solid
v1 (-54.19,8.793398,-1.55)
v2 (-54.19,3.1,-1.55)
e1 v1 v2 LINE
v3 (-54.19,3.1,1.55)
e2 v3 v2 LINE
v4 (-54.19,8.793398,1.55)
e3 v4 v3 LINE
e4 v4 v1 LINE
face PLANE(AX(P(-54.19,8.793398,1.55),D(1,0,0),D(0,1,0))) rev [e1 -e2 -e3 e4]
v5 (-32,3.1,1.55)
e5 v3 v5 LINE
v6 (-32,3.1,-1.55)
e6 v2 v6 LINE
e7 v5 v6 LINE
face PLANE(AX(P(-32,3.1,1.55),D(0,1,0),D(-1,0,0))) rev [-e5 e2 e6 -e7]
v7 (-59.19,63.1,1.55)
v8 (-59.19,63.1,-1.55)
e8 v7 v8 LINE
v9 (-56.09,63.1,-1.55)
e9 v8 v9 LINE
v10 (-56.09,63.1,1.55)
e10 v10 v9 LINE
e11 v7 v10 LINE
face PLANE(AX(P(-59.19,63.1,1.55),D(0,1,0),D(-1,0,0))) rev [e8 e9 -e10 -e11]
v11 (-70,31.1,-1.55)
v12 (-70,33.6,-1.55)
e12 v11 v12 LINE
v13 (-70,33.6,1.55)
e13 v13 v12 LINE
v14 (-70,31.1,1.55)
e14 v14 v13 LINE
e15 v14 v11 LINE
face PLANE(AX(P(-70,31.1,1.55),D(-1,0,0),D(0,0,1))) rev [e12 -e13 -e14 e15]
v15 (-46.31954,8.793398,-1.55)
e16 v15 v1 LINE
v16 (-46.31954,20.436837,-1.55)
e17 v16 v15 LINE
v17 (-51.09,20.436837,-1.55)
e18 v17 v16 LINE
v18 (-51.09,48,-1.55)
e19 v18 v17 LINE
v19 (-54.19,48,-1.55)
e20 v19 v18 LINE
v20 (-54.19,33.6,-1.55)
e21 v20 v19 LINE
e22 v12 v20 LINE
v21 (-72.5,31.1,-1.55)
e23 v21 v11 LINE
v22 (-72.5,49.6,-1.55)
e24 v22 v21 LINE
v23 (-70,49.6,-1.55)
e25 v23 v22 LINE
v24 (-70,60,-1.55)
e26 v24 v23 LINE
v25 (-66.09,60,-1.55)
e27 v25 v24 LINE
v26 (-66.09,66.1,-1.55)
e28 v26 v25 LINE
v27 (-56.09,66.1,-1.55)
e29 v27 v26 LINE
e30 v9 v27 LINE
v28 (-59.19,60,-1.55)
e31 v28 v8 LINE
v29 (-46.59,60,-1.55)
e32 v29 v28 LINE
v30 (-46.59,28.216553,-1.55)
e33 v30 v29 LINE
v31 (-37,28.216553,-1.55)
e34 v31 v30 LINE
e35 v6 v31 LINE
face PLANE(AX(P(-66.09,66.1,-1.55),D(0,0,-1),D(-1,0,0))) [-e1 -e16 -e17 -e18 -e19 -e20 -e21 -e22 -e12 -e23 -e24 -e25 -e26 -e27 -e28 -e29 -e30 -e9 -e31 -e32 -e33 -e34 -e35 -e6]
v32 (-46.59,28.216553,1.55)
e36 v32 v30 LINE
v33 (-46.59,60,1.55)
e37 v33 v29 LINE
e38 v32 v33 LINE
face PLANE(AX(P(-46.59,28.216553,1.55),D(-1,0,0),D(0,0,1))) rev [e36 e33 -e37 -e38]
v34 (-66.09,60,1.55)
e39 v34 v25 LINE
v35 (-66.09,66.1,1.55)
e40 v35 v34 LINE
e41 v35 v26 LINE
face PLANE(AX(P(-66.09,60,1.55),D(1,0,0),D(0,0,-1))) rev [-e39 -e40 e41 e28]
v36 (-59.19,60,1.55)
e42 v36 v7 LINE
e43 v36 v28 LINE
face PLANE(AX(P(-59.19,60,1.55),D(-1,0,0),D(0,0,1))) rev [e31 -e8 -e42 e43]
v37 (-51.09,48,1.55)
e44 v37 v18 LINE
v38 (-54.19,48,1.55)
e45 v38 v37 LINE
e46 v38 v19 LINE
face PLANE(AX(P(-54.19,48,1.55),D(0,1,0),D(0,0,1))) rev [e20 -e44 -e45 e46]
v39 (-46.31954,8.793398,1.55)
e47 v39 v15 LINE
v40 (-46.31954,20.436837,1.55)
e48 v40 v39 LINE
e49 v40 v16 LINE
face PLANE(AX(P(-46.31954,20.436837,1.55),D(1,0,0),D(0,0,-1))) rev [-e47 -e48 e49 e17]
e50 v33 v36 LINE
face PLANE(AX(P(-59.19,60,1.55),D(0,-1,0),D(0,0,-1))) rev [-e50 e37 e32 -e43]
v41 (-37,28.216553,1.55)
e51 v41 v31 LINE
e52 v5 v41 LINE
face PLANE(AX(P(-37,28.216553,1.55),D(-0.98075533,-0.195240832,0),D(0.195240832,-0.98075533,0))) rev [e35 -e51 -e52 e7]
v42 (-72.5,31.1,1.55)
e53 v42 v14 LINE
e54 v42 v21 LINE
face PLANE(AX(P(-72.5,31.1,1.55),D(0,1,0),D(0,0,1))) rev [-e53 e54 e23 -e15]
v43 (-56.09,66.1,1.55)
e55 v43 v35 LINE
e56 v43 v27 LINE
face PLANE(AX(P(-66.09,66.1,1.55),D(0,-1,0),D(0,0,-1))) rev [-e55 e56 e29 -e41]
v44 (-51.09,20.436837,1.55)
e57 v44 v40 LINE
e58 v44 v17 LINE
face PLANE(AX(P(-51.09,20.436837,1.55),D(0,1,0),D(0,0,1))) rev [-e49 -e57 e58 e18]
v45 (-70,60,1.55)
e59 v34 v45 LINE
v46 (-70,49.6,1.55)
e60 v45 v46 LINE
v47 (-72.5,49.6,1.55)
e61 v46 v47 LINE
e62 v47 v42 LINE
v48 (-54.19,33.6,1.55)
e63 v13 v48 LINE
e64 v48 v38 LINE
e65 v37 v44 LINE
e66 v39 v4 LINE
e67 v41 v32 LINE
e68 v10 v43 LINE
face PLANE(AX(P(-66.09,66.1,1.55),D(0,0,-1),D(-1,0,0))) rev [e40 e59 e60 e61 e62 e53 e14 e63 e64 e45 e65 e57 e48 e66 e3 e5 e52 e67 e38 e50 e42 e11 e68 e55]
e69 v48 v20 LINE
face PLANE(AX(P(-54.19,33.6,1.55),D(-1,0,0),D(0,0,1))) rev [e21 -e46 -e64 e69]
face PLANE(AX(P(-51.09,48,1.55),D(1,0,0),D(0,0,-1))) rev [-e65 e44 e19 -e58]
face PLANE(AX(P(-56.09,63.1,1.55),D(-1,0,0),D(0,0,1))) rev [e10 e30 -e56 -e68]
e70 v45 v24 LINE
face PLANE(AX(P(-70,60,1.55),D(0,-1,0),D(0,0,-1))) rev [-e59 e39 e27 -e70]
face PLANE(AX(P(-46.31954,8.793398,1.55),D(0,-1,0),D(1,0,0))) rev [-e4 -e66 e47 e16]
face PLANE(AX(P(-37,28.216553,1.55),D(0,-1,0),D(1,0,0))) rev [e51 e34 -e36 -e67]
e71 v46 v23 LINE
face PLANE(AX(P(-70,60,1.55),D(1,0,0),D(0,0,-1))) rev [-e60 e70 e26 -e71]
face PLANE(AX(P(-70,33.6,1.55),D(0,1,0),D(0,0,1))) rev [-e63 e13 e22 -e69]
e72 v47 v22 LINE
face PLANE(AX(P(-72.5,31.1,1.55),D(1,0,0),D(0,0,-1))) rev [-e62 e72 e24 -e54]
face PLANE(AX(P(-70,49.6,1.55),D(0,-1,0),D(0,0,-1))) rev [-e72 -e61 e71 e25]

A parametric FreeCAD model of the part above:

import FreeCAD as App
import Part
import Sketcher
from FreeCAD import Vector
Q = App.Units.Quantity


def add_polygon(sketch, points):
    """Adds a closed chain of lines whose ends are joined by coincident constraints."""
    first, n = sketch.GeometryCount, len(points)
    for a, b in zip(points, points[1:] + points[:1]):
        sketch.addGeometry(Part.LineSegment(App.Vector(*a, 0), App.Vector(*b, 0)), False)
    for i in range(n):
        sketch.addConstraint(Sketcher.Constraint("Coincident", first + i, 2, first + (i + 1) % n, 1))

doc = App.newDocument("Part")
body = doc.addObject("PartDesign::Body", "Body")

# Sketch on XY plane
sketch1 = doc.addObject("Sketcher::SketchObject", "Sketch")
body.addObject(sketch1)
sketch1.AttachmentSupport = (doc.XY_Plane, [""])
sketch1.MapMode = "FlatFace"
add_polygon(sketch1, [(-72.5, 31.1), (-70, 31.1), (-70, 33.6), (-54.19, 33.6), (-54.19, 48), (-51.09, 48), (-51.09, 20.436837), (-46.31954, 20.436837), (-46.31954, 8.793398), (-54.19, 8.793398), (-54.19, 3.1), (-32, 3.1), (-37, 28.216553), (-46.59, 28.216553), (-46.59, 60), (-59.19, 60), (-59.19, 63.1), (-56.09, 63.1), (-56.09, 66.1), (-66.09, 66.1), (-66.09, 60), (-70, 60), (-70, 49.6), (-72.5, 49.6)])  # lines 0-23
sketch1.addConstraint(Sketcher.Constraint("Horizontal", 0))
sketch1.addConstraint(Sketcher.Constraint("Vertical", 1))
sketch1.addConstraint(Sketcher.Constraint("Horizontal", 2))
sketch1.addConstraint(Sketcher.Constraint("Vertical", 3))
sketch1.addConstraint(Sketcher.Constraint("Horizontal", 4))
sketch1.addConstraint(Sketcher.Constraint("Vertical", 5))
sketch1.addConstraint(Sketcher.Constraint("Horizontal", 6))
sketch1.addConstraint(Sketcher.Constraint("Vertical", 7))
sketch1.addConstraint(Sketcher.Constraint("Horizontal", 8))
sketch1.addConstraint(Sketcher.Constraint("Vertical", 9))
sketch1.addConstraint(Sketcher.Constraint("Horizontal", 10))
sketch1.addConstraint(Sketcher.Constraint("Horizontal", 12))
sketch1.addConstraint(Sketcher.Constraint("Vertical", 13))
sketch1.addConstraint(Sketcher.Constraint("Horizontal", 14))
sketch1.addConstraint(Sketcher.Constraint("Vertical", 15))
sketch1.addConstraint(Sketcher.Constraint("Horizontal", 16))
sketch1.addConstraint(Sketcher.Constraint("Vertical", 17))
sketch1.addConstraint(Sketcher.Constraint("Horizontal", 18))
sketch1.addConstraint(Sketcher.Constraint("Vertical", 19))
sketch1.addConstraint(Sketcher.Constraint("Horizontal", 20))
sketch1.addConstraint(Sketcher.Constraint("Vertical", 21))
sketch1.addConstraint(Sketcher.Constraint("Horizontal", 22))
sketch1.addConstraint(Sketcher.Constraint("Vertical", 23))
sketch1.addConstraint(Sketcher.Constraint("Horizontal", 14, 2, 19, 2))
sketch1.addConstraint(Sketcher.Constraint("Vertical", 3, 2, 8, 2))
sketch1.addConstraint(Sketcher.Constraint("Vertical", 1, 2, 20, 2))
sketch1.addConstraint(Sketcher.Constraint("Equal", 4, 16))
sketch1.addConstraint(Sketcher.Constraint("Equal", 22, 1))
sketch1.addConstraint(Sketcher.Constraint("Equal", 16, 15))
sketch1.addConstraint(Sketcher.Constraint("DistanceX", 18, 2, 18, 1, Q("10 mm")))
sketch1.addConstraint(Sketcher.Constraint("DistanceY", 17, 1, 17, 2, Q("3 mm")))
sketch1.addConstraint(Sketcher.Constraint("DistanceX", 0, 1, 0, 2, Q("2.5 mm")))
sketch1.addConstraint(Sketcher.Constraint("DistanceX", 4, 1, 4, 2, Q("3.1 mm")))
sketch1.addConstraint(Sketcher.Constraint("DistanceX", 14, 2, 14, 1, Q("12.6 mm")))
sketch1.addConstraint(Sketcher.Constraint("DistanceY", 3, 1, 3, 2, Q("14.4 mm")))
sketch1.addConstraint(Sketcher.Constraint("DistanceY", 21, 2, 21, 1, Q("10.4 mm")))
sketch1.addConstraint(Sketcher.Constraint("DistanceY", 23, 2, 23, 1, Q("18.5 mm")))
sketch1.addConstraint(Sketcher.Constraint("DistanceX", 0, 2, -1, 1, Q("70 mm")))
sketch1.addConstraint(Sketcher.Constraint("DistanceY", -1, 1, 3, 2, Q("48 mm")))
sketch1.addConstraint(Sketcher.Constraint("DistanceX", 10, 2, -1, 1, Q("32 mm")))
sketch1.addConstraint(Sketcher.Constraint("DistanceX", 11, 2, -1, 1, Q("37 mm")))
sketch1.addConstraint(Sketcher.Constraint("DistanceX", 14, 2, 3, 2, Q("5 mm")))
sketch1.addConstraint(Sketcher.Constraint("DistanceX", 2, 1, 2, 2, Q("15.81 mm")))
sketch1.addConstraint(Sketcher.Constraint("DistanceY", -1, 1, 9, 2, Q("3.1 mm")))
sketch1.addConstraint(Sketcher.Constraint("DistanceX", 6, 1, 6, 2, Q("4.77046 mm")))
sketch1.addConstraint(Sketcher.Constraint("DistanceY", 7, 2, 7, 1, Q("11.643439 mm")))
sketch1.addConstraint(Sketcher.Constraint("DistanceY", 5, 2, 5, 1, Q("27.563163 mm")))
sketch1.addConstraint(Sketcher.Constraint("DistanceY", 13, 1, 13, 2, Q("31.783447 mm")))
pad1 = doc.addObject("PartDesign::Pad", "Pad")
body.addObject(pad1)
pad1.Profile = sketch1
pad1.Type = "TwoLengths"
pad1.Length = 1.55
pad1.Length2 = 1.55

doc.recompute()
